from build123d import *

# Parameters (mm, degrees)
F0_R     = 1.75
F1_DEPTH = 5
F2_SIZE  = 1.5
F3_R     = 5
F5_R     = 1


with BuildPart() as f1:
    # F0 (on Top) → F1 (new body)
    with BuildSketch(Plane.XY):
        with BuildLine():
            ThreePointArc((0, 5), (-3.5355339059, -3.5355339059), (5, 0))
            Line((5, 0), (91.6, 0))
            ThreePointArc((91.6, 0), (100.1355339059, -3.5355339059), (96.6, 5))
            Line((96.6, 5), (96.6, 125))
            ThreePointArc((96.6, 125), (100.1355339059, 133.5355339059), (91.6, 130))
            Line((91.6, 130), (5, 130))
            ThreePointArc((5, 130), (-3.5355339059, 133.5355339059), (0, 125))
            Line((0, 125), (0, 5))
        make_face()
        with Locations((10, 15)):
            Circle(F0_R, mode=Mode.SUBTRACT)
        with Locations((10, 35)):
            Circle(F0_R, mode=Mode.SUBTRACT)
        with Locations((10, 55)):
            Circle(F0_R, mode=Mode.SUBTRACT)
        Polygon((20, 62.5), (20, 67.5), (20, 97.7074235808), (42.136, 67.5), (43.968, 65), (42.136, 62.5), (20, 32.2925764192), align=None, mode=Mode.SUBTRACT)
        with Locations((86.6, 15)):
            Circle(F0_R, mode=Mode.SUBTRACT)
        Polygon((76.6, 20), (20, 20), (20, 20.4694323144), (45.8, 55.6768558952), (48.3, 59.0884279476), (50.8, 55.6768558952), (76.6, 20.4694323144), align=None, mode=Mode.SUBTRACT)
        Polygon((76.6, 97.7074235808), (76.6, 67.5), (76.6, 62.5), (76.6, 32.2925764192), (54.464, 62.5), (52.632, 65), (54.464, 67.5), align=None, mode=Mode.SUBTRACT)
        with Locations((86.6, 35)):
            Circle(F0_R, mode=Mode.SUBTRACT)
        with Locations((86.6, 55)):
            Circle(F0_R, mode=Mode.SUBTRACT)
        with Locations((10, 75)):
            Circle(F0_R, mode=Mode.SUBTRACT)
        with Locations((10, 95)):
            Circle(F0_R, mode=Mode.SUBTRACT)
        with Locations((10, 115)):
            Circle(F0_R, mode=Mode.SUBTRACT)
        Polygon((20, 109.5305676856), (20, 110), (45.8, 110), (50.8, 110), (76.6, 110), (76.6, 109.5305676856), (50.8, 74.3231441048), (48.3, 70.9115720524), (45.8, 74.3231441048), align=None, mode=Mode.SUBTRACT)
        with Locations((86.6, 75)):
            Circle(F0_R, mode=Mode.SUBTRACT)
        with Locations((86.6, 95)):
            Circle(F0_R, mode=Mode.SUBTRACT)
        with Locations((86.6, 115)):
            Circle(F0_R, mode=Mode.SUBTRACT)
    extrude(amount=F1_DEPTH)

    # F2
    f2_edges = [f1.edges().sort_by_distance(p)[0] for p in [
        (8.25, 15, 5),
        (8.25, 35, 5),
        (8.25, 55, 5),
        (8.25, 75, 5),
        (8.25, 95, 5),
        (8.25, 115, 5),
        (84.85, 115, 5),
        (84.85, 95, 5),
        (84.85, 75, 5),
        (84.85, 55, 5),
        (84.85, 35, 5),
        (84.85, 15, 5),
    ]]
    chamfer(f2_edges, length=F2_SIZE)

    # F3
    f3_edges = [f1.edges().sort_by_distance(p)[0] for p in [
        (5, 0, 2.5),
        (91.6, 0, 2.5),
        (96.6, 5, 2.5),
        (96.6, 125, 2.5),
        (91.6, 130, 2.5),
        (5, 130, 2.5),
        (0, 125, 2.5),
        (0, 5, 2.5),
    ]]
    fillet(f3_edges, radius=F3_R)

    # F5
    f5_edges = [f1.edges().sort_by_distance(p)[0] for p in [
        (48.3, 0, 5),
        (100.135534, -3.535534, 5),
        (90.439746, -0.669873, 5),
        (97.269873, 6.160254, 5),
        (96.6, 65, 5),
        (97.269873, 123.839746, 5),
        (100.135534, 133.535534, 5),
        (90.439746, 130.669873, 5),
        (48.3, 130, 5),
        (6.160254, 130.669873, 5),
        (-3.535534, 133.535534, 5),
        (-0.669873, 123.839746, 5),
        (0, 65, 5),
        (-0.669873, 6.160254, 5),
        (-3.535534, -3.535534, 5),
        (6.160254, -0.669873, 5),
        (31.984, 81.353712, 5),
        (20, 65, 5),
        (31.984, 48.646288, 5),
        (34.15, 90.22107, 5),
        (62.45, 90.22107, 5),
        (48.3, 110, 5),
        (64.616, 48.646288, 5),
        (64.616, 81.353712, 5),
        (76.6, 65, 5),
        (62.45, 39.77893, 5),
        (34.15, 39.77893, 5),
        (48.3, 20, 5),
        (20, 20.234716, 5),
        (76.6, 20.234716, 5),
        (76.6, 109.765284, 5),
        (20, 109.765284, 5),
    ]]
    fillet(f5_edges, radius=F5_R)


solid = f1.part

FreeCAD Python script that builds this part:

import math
import FreeCAD as App
import Part
import Sketcher

V = App.Vector
Q = App.Units.Quantity


def edges_at(feature, points):
    """Names of the edges that pass closest to the given points."""
    edges = feature.Shape.Edges
    near = lambda p: min(range(len(edges)), key=lambda i: edges[i].distToShape(Part.Vertex(*p))[0])
    return sorted({f"Edge{near(p) + 1}" for p in points})


def add_polygon(sketch, points):
    """Adds a closed chain of lines whose ends are joined by coincident constraints."""
    first, n = sketch.GeometryCount, len(points)
    for a, b in zip(points, points[1:] + points[:1]):
        sketch.addGeometry(Part.LineSegment(App.Vector(*a, 0), App.Vector(*b, 0)), False)
    for i in range(n):
        sketch.addConstraint(Sketcher.Constraint("Coincident", first + i, 2, first + (i + 1) % n, 1))

doc = App.newDocument("Part")
body = doc.addObject("PartDesign::Body", "Body")

# Sketch on XY plane
sketch1 = doc.addObject("Sketcher::SketchObject", "Sketch")
body.addObject(sketch1)
sketch1.AttachmentSupport = (doc.XY_Plane, [""])
sketch1.MapMode = "FlatFace"
sketch1.addGeometry(Part.ArcOfCircle(Part.Circle(V(0, 0, 0), V(0, 0, 1), 5), math.radians(90), math.radians(360)), False)  # 0
sketch1.addGeometry(Part.LineSegment(V(5, 0, 0), V(91.6, 0, 0)), False)  # 1
sketch1.addGeometry(Part.ArcOfCircle(Part.Circle(V(96.6, 0, 0), V(0, 0, 1), 5), math.radians(180), math.radians(450)), False)  # 2
sketch1.addGeometry(Part.LineSegment(V(96.6, 5, 0), V(96.6, 125, 0)), False)  # 3
sketch1.addGeometry(Part.ArcOfCircle(Part.Circle(V(96.6, 130, 0), V(0, 0, 1), 5), math.radians(-90), math.radians(180)), False)  # 4
sketch1.addGeometry(Part.LineSegment(V(91.6, 130, 0), V(5, 130, 0)), False)  # 5
sketch1.addGeometry(Part.ArcOfCircle(Part.Circle(V(0, 130, 0), V(0, 0, 1), 5), math.radians(0), math.radians(270)), False)  # 6
sketch1.addGeometry(Part.LineSegment(V(0, 125, 0), V(0, 5, 0)), False)  # 7
sketch1.addGeometry(Part.Circle(V(10, 15, 0), V(0, 0, 1), 1.75), False)  # 8
sketch1.addGeometry(Part.Circle(V(10, 35, 0), V(0, 0, 1), 1.75), False)  # 9
sketch1.addGeometry(Part.Circle(V(10, 55, 0), V(0, 0, 1), 1.75), False)  # 10
sketch1.addGeometry(Part.Circle(V(86.6, 15, 0), V(0, 0, 1), 1.75), False)  # 11
sketch1.addGeometry(Part.Circle(V(86.6, 35, 0), V(0, 0, 1), 1.75), False)  # 12
add_polygon(sketch1, [(76.6, 20.47), (76.6, 20), (20, 20), (20, 20.47), (48.3, 59.09)])  # lines 13-17
sketch1.addGeometry(Part.Circle(V(86.6, 55, 0), V(0, 0, 1), 1.75), False)  # 18
sketch1.addGeometry(Part.Circle(V(10, 75, 0), V(0, 0, 1), 1.75), False)  # 19
add_polygon(sketch1, [(20, 32.29), (20, 97.71), (43.97, 65)])  # lines 20-22
sketch1.addGeometry(Part.Circle(V(10, 95, 0), V(0, 0, 1), 1.75), False)  # 23
sketch1.addGeometry(Part.Circle(V(10, 115, 0), V(0, 0, 1), 1.75), False)  # 24
add_polygon(sketch1, [(52.63, 65), (76.6, 97.71), (76.6, 32.29)])  # lines 25-27
add_polygon(sketch1, [(48.3, 70.91), (20, 109.53), (20, 110), (76.6, 110), (76.6, 109.53)])  # lines 28-32
sketch1.addGeometry(Part.Circle(V(86.6, 75, 0), V(0, 0, 1), 1.75), False)  # 33
sketch1.addGeometry(Part.Circle(V(86.6, 95, 0), V(0, 0, 1), 1.75), False)  # 34
sketch1.addGeometry(Part.Circle(V(86.6, 115, 0), V(0, 0, 1), 1.75), False)  # 35
sketch1.addConstraint(Sketcher.Constraint("Coincident", 0, 2, 1, 1))
sketch1.addConstraint(Sketcher.Constraint("Coincident", 1, 2, 2, 1))
sketch1.addConstraint(Sketcher.Constraint("Coincident", 2, 2, 3, 1))
sketch1.addConstraint(Sketcher.Constraint("Coincident", 3, 2, 4, 1))
sketch1.addConstraint(Sketcher.Constraint("Coincident", 4, 2, 5, 1))
sketch1.addConstraint(Sketcher.Constraint("Coincident", 5, 2, 6, 1))
sketch1.addConstraint(Sketcher.Constraint("Coincident", 6, 2, 7, 1))
sketch1.addConstraint(Sketcher.Constraint("Coincident", 7, 2, 0, 1))
sketch1.addConstraint(Sketcher.Constraint("Horizontal", 1))
sketch1.addConstraint(Sketcher.Constraint("Vertical", 3))
sketch1.addConstraint(Sketcher.Constraint("Horizontal", 5))
sketch1.addConstraint(Sketcher.Constraint("Vertical", 7))
sketch1.addConstraint(Sketcher.Constraint("Vertical", 13))
sketch1.addConstraint(Sketcher.Constraint("Horizontal", 14))
sketch1.addConstraint(Sketcher.Constraint("Vertical", 15))
sketch1.addConstraint(Sketcher.Constraint("Vertical", 20))
sketch1.addConstraint(Sketcher.Constraint("Vertical", 26))
sketch1.addConstraint(Sketcher.Constraint("Vertical", 29))
sketch1.addConstraint(Sketcher.Constraint("Horizontal", 30))
sketch1.addConstraint(Sketcher.Constraint("Vertical", 31))
sketch1.addConstraint(Sketcher.Constraint("Coincident", 0, 3, -1, 1))
sketch1.addConstraint(Sketcher.Constraint("Equal", 0, 2))
sketch1.addConstraint(Sketcher.Constraint("Equal", 2, 4))
sketch1.addConstraint(Sketcher.Constraint("Equal", 4, 6))
sketch1.addConstraint(Sketcher.Constraint("Equal", 8, 9))
sketch1.addConstraint(Sketcher.Constraint("Equal", 9, 10))
sketch1.addConstraint(Sketcher.Constraint("Equal", 10, 11))
sketch1.addConstraint(Sketcher.Constraint("Equal", 11, 12))
sketch1.addConstraint(Sketcher.Constraint("Equal", 12, 18))
sketch1.addConstraint(Sketcher.Constraint("Equal", 18, 19))
sketch1.addConstraint(Sketcher.Constraint("Equal", 19, 23))
sketch1.addConstraint(Sketcher.Constraint("Equal", 23, 24))
sketch1.addConstraint(Sketcher.Constraint("Equal", 24, 33))
sketch1.addConstraint(Sketcher.Constraint("Equal", 33, 34))
sketch1.addConstraint(Sketcher.Constraint("Equal", 34, 35))
sketch1.addConstraint(Sketcher.Constraint("PointOnObject", 2, 3, -1))
sketch1.addConstraint(Sketcher.Constraint("PointOnObject", 6, 3, -2))
sketch1.addConstraint(Sketcher.Constraint("PointOnObject", 0, 2, -1))
sketch1.addConstraint(Sketcher.Constraint("PointOnObject", 6, 2, -2))
sketch1.addConstraint(Sketcher.Constraint("Parallel", 17, 21))
sketch1.addConstraint(Sketcher.Constraint("Parallel", 16, 22))
sketch1.addConstraint(Sketcher.Constraint("Parallel", 22, 25))
sketch1.addConstraint(Sketcher.Constraint("Parallel", 21, 27))
sketch1.addConstraint(Sketcher.Constraint("Parallel", 27, 28))
sketch1.addConstraint(Sketcher.Constraint("Parallel", 25, 32))
sketch1.addConstraint(Sketcher.Constraint("Horizontal", 4, 3, 6, 3))
sketch1.addConstraint(Sketcher.Constraint("Horizontal", 8, 3, 11, 3))
sketch1.addConstraint(Sketcher.Constraint("Horizontal", 9, 3, 12, 3))
sketch1.addConstraint(Sketcher.Constraint("Horizontal", 10, 3, 18, 3))
sketch1.addConstraint(Sketcher.Constraint("Horizontal", 19, 3, 33, 3))
sketch1.addConstraint(Sketcher.Constraint("Horizontal", 23, 3, 34, 3))
sketch1.addConstraint(Sketcher.Constraint("Horizontal", 24, 3, 35, 3))
sketch1.addConstraint(Sketcher.Constraint("Horizontal", 6, 3, 4, 2))
sketch1.addConstraint(Sketcher.Constraint("Horizontal", 15, 2, 17, 2))
sketch1.addConstraint(Sketcher.Constraint("Horizontal", 20, 2, 25, 2))
sketch1.addConstraint(Sketcher.Constraint("Horizontal", 22, 2, 26, 2))
sketch1.addConstraint(Sketcher.Constraint("Horizontal", 21, 2, 27, 2))
sketch1.addConstraint(Sketcher.Constraint("Horizontal", 28, 2, 31, 2))
sketch1.addConstraint(Sketcher.Constraint("Vertical", 2, 3, 4, 3))
sketch1.addConstraint(Sketcher.Constraint("Vertical", 8, 3, 9, 3))
sketch1.addConstraint(Sketcher.Constraint("Vertical", 9, 3, 10, 3))
sketch1.addConstraint(Sketcher.Constraint("Vertical", 11, 3, 12, 3))
sketch1.addConstraint(Sketcher.Constraint("Vertical", 12, 3, 18, 3))
sketch1.addConstraint(Sketcher.Constraint("Vertical", 10, 3, 19, 3))
sketch1.addConstraint(Sketcher.Constraint("Vertical", 19, 3, 23, 3))
sketch1.addConstraint(Sketcher.Constraint("Vertical", 23, 3, 24, 3))
sketch1.addConstraint(Sketcher.Constraint("Vertical", 18, 3, 33, 3))
sketch1.addConstraint(Sketcher.Constraint("Vertical", 33, 3, 34, 3))
sketch1.addConstraint(Sketcher.Constraint("Vertical", 34, 3, 35, 3))
sketch1.addConstraint(Sketcher.Constraint("Vertical", 4, 3, 2, 2))
sketch1.addConstraint(Sketcher.Constraint("Vertical", 15, 2, 20, 2))
sketch1.addConstraint(Sketcher.Constraint("Vertical", 17, 2, 25, 2))
sketch1.addConstraint(Sketcher.Constraint("Vertical", 22, 2, 28, 2))
sketch1.addConstraint(Sketcher.Constraint("Vertical", 26, 2, 30, 2))
sketch1.addConstraint(Sketcher.Constraint("Equal", 15, 29))
sketch1.addConstraint(Sketcher.Constraint("Radius", 0, Q("5 mm")))
sketch1.addConstraint(Sketcher.Constraint("Diameter", 8, Q("3.5 mm")))
sketch1.addConstraint(Sketcher.Constraint("DistanceY", 3, 1, 3, 2, Q("120 mm")))
sketch1.addConstraint(Sketcher.Constraint("DistanceX", 1, 1, 1, 2, Q("86.6 mm")))
sketch1.addConstraint(Sketcher.Constraint("DistanceX", 14, 2, 14, 1, Q("56.6 mm")))
sketch1.addConstraint(Sketcher.Constraint("DistanceX", -1, 1, 8, 3, Q("10 mm")))
sketch1.addConstraint(Sketcher.Constraint("DistanceY", -1, 1, 8, 3, Q("15 mm")))
sketch1.addConstraint(Sketcher.Constraint("DistanceY", -1, 1, 9, 3, Q("35 mm")))
sketch1.addConstraint(Sketcher.Constraint("DistanceY", -1, 1, 10, 3, Q("55 mm")))
sketch1.addConstraint(Sketcher.Constraint("DistanceY", -1, 1, 19, 3, Q("75 mm")))
sketch1.addConstraint(Sketcher.Constraint("DistanceY", -1, 1, 23, 3, Q("95 mm")))
sketch1.addConstraint(Sketcher.Constraint("DistanceY", -1, 1, 24, 3, Q("115 mm")))
sketch1.addConstraint(Sketcher.Constraint("DistanceY", -1, 1, 13, 2, Q("20 mm")))
sketch1.addConstraint(Sketcher.Constraint("DistanceX", -1, 1, 14, 2, Q("20 mm")))
sketch1.addConstraint(Sketcher.Constraint("DistanceY", -1, 1, 21, 2, Q("65 mm")))
sketch1.addConstraint(Sketcher.Constraint("DistanceY", -1, 1, 29, 2, Q("110 mm")))
sketch1.addConstraint(Sketcher.Constraint("DistanceX", 11, 3, 2, 3, Q("10 mm")))
sketch1.addConstraint(Sketcher.Constraint("DistanceX", -1, 1, 21, 2, Q("43.968 mm")))
sketch1.addConstraint(Sketcher.Constraint("DistanceY", 13, 2, 13, 1, Q("0.469432 mm")))
sketch1.addConstraint(Sketcher.Constraint("DistanceY", 20, 1, 20, 2, Q("65.414847 mm")))
pad1 = doc.addObject("PartDesign::Pad", "Pad")
body.addObject(pad1)
pad1.Profile = sketch1
pad1.Length = 5
doc.recompute()

chamfer = doc.addObject("PartDesign::Chamfer", "Chamfer")
body.addObject(chamfer)
chamfer.Base = (pad1, edges_at(pad1, [
    (8.25, 15, 5),
    (8.25, 35, 5),
    (8.25, 55, 5),
    (8.25, 75, 5),
    (8.25, 95, 5),
    (8.25, 115, 5),
    (84.85, 115, 5),
    (84.85, 95, 5),
    (84.85, 75, 5),
    (84.85, 55, 5),
    (84.85, 35, 5),
    (84.85, 15, 5),
]))
chamfer.Size = 1.5
doc.recompute()

fillet = doc.addObject("PartDesign::Fillet", "Fillet")
body.addObject(fillet)
fillet.Base = (chamfer, edges_at(chamfer, [
    (5, 0, 2.5),
    (91.6, 0, 2.5),
    (96.6, 5, 2.5),
    (96.6, 125, 2.5),
    (91.6, 130, 2.5),
    (5, 130, 2.5),
    (0, 125, 2.5),
    (0, 5, 2.5),
]))
fillet.Radius = 5
doc.recompute()

fillet2 = doc.addObject("PartDesign::Fillet", "Fillet001")
body.addObject(fillet2)
fillet2.Base = (fillet, edges_at(fillet, [
    (48.3, 0, 5),
    (100.136, -3.536, 5),
    (90.44, -0.67, 5),
    (97.27, 6.16, 5),
    (96.6, 65, 5),
    (97.27, 123.84, 5),
    (100.136, 133.536, 5),
    (90.44, 130.67, 5),
    (48.3, 130, 5),
    (6.16, 130.67, 5),
    (-3.536, 133.536, 5),
    (-0.67, 123.84, 5),
    (0, 65, 5),
    (-0.67, 6.16, 5),
    (-3.536, -3.536, 5),
    (6.16, -0.67, 5),
    (31.984, 81.354, 5),
    (20, 65, 5),
    (31.984, 48.646, 5),
    (34.15, 90.221, 5),
    (62.45, 90.221, 5),
    (48.3, 110, 5),
    (64.616, 48.646, 5),
    (64.616, 81.354, 5),
    (76.6, 65, 5),
    (62.45, 39.779, 5),
    (34.15, 39.779, 5),
    (48.3, 20, 5),
    (20, 20.235, 5),
    (76.6, 20.235, 5),
    (76.6, 109.765, 5),
    (20, 109.765, 5),
]))
fillet2.Radius = 1

doc.recompute()
